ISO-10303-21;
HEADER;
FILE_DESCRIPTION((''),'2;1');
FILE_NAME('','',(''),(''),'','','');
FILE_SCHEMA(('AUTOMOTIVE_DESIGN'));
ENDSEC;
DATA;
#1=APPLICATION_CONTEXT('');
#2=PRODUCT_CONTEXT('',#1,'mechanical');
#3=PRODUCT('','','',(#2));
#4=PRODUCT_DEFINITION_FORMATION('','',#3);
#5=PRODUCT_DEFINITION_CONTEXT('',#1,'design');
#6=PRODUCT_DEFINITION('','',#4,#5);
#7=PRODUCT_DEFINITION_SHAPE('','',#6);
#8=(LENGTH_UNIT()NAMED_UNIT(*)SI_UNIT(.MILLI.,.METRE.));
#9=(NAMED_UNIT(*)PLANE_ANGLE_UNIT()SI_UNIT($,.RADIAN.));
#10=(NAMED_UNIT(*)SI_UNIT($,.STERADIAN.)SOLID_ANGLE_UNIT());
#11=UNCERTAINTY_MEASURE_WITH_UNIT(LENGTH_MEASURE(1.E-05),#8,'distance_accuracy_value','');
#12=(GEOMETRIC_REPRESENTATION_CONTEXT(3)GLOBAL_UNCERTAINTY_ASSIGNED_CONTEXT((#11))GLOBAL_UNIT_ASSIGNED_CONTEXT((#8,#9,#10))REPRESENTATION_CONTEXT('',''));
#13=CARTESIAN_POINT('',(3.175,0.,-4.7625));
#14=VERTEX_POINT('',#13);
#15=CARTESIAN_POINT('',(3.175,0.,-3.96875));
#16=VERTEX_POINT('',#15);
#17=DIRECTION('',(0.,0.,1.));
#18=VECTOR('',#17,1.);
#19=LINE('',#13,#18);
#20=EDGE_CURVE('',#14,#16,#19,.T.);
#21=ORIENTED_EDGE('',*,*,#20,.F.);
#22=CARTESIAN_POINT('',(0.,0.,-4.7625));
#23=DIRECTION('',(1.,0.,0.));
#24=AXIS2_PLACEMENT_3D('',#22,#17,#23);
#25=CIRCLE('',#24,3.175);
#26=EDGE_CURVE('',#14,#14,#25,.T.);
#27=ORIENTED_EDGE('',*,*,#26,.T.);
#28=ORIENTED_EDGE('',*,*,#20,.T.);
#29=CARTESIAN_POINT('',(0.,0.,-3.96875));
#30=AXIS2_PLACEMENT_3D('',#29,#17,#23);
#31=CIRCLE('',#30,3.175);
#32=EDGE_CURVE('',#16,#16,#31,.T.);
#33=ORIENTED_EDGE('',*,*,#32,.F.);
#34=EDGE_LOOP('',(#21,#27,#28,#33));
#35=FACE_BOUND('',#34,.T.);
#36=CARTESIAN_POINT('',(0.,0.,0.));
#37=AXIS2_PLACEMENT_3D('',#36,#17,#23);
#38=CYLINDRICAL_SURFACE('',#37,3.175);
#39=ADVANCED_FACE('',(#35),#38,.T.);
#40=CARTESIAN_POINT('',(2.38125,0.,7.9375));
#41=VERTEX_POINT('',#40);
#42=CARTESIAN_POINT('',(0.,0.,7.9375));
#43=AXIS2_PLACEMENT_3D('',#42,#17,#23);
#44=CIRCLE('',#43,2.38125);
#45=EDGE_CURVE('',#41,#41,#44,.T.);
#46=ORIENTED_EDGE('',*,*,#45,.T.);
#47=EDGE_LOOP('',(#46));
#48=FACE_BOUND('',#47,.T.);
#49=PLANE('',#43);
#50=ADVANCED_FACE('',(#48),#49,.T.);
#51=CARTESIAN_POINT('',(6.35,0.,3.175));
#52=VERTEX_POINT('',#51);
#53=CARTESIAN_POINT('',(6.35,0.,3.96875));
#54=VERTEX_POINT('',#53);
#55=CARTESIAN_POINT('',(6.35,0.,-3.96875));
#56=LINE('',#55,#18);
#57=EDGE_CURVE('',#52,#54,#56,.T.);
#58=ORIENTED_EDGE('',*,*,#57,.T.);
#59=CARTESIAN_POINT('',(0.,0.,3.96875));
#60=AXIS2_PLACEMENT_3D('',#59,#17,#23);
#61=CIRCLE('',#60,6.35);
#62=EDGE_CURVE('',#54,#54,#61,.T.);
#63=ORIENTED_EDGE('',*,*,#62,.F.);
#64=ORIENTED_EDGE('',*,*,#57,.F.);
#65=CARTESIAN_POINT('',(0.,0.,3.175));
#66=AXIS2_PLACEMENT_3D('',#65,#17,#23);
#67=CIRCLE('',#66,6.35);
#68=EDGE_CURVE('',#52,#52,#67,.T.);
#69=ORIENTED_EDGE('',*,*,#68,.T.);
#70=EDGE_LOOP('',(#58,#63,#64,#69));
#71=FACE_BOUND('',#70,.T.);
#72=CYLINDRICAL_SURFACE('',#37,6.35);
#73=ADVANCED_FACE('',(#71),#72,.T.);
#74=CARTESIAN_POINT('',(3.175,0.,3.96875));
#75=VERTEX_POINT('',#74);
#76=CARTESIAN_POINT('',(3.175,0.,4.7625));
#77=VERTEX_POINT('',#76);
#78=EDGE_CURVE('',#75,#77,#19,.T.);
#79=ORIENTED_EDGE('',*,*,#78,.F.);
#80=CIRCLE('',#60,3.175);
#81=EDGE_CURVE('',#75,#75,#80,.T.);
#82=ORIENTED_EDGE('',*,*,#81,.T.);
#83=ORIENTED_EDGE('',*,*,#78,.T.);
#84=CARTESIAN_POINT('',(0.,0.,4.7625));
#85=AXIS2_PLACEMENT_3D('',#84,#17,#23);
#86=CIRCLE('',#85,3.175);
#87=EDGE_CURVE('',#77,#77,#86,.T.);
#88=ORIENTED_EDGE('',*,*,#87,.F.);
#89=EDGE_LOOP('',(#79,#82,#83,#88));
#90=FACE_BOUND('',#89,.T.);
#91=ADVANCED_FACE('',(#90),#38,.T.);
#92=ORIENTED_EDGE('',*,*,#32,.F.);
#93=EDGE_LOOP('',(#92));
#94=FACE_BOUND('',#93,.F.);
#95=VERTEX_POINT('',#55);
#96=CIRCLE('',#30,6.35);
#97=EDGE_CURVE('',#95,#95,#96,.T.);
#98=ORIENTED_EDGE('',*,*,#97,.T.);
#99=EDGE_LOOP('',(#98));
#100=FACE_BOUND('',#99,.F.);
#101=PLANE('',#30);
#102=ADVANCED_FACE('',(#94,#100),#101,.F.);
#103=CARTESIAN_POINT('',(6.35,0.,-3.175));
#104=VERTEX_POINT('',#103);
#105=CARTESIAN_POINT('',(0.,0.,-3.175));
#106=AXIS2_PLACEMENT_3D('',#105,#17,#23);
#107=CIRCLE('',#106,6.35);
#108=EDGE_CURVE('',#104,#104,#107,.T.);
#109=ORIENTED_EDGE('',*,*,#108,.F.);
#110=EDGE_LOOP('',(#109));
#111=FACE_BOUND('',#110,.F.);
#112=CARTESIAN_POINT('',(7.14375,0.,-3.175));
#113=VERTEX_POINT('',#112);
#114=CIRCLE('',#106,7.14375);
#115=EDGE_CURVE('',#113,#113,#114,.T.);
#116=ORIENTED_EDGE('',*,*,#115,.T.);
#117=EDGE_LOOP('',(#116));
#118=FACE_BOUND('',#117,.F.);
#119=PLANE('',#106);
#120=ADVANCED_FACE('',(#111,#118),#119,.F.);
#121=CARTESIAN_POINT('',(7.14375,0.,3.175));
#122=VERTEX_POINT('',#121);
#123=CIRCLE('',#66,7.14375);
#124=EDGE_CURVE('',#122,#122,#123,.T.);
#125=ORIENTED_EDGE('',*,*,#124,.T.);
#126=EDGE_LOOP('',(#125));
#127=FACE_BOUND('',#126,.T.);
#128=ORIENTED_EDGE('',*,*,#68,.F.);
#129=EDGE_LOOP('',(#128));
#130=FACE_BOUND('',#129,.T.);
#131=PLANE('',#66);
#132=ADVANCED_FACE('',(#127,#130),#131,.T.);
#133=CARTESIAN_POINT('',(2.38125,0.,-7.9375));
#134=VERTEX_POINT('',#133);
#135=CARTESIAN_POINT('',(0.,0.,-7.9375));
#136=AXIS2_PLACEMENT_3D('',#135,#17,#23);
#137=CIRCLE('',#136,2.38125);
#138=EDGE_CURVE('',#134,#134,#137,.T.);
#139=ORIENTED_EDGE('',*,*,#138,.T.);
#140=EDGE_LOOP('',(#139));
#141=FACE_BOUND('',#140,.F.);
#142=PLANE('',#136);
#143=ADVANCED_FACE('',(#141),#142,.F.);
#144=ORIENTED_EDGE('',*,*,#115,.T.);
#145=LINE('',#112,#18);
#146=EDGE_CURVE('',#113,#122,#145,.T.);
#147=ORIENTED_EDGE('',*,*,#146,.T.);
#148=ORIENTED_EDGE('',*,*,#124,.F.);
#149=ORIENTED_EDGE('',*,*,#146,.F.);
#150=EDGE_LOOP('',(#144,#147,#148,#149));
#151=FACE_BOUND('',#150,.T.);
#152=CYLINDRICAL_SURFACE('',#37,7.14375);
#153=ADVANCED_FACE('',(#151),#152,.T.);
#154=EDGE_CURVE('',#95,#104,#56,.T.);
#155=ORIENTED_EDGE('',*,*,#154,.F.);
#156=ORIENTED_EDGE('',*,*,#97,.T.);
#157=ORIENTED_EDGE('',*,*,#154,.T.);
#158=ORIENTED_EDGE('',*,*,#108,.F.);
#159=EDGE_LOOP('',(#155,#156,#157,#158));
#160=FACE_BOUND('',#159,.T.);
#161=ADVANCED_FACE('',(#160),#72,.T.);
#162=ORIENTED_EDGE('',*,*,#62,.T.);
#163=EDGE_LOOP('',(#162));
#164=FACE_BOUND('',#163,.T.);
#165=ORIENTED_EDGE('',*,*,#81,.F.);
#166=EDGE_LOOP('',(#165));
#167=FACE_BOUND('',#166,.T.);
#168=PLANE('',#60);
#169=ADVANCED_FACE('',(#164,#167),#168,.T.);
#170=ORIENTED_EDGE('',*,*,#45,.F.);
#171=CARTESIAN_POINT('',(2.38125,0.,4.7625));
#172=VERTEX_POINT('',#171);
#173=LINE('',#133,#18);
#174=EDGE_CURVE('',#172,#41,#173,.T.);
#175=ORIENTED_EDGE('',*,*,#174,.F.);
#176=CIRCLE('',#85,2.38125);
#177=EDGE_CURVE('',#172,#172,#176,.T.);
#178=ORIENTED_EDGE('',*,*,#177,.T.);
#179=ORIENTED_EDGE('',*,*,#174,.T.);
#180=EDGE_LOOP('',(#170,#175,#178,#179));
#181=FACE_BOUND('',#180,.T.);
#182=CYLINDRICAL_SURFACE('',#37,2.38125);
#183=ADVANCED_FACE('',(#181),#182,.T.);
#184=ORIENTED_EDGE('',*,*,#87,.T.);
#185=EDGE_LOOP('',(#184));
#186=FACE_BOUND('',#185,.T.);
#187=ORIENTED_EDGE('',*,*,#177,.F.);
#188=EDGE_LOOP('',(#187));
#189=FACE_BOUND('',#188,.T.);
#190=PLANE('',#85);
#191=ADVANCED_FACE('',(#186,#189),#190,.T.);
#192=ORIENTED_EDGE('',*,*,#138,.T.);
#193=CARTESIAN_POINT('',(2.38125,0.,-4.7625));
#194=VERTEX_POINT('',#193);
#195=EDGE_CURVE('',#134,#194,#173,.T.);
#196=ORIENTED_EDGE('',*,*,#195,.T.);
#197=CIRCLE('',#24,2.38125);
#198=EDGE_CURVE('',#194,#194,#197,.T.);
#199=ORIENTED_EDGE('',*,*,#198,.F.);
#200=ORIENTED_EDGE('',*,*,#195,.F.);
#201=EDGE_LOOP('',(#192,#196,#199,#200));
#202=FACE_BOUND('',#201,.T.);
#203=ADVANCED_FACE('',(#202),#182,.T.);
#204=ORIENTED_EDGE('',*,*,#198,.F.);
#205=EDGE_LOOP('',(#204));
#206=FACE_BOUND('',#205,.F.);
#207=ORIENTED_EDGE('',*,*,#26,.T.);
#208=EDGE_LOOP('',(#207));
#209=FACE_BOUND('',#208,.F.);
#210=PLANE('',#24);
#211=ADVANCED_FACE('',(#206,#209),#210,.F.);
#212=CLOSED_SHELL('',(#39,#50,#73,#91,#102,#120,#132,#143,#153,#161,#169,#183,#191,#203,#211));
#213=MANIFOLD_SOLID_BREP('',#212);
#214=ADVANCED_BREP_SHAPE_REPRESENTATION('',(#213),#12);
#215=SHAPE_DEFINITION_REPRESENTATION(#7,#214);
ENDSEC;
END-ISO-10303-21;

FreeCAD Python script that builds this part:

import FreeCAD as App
import Part
import Sketcher
Q = App.Units.Quantity

doc = App.newDocument("Part")
body = doc.addObject("PartDesign::Body", "Body")

# Sketch on XY plane
sketch1 = body.newObject("Sketcher::SketchObject", "Sketch")
sketch1.AttachmentSupport = (doc.getObject("XY_Plane"), [""])
sketch1.MapMode = "FlatFace"
sketch1.addGeometry(Part.Circle(App.Vector(0, 0, 0), App.Vector(0, 0, 1), 2.38125), False)
sketch1.addConstraint(Sketcher.Constraint("Coincident", 0, 3, -1, 1))
sketch1.addConstraint(Sketcher.Constraint("Diameter", 0, Q("0.1875 in")))
pad1 = body.newObject("PartDesign::Pad", "Pad")
pad1.Profile = sketch1
pad1.Length = Q("0.625 in")
pad1.Midplane = True

# Sketch on XY plane
sketch2 = body.newObject("Sketcher::SketchObject", "Sketch001")
sketch2.AttachmentSupport = (doc.getObject("XY_Plane"), [""])
sketch2.MapMode = "FlatFace"
sketch2.addGeometry(Part.Circle(App.Vector(0, 0, 0), App.Vector(0, 0, 1), 3.175), False)
sketch2.addConstraint(Sketcher.Constraint("Coincident", 0, 3, -1, 1))
sketch2.addConstraint(Sketcher.Constraint("Diameter", 0, Q("0.25 in")))
pad2 = body.newObject("PartDesign::Pad", "Pad001")
pad2.Profile = sketch2
pad2.Length = Q("0.375 in")
pad2.Midplane = True

# Sketch on XY plane
sketch3 = body.newObject("Sketcher::SketchObject", "Sketch002")
sketch3.AttachmentSupport = (doc.getObject("XY_Plane"), [""])
sketch3.MapMode = "FlatFace"
sketch3.addGeometry(Part.Circle(App.Vector(0, 0, 0), App.Vector(0, 0, 1), 7.14375), False)
sketch3.addConstraint(Sketcher.Constraint("Coincident", 0, 3, -1, 1))
sketch3.addConstraint(Sketcher.Constraint("Diameter", 0, Q("0.5625 in")))
pad3 = body.newObject("PartDesign::Pad", "Pad002")
pad3.Profile = sketch3
pad3.Length = Q("0.25 in")
pad3.Midplane = True

# Sketch on XY plane
sketch4 = body.newObject("Sketcher::SketchObject", "Sketch003")
sketch4.AttachmentSupport = (doc.getObject("XY_Plane"), [""])
sketch4.MapMode = "FlatFace"
sketch4.addGeometry(Part.Circle(App.Vector(0, 0, 0), App.Vector(0, 0, 1), 6.35), False)
sketch4.addConstraint(Sketcher.Constraint("Coincident", 0, 3, -1, 1))
sketch4.addConstraint(Sketcher.Constraint("Diameter", 0, Q("0.5 in")))
pad4 = body.newObject("PartDesign::Pad", "Pad003")
pad4.Profile = sketch4
pad4.Length = Q("0.3125 in")
pad4.Midplane = True

doc.recompute()
